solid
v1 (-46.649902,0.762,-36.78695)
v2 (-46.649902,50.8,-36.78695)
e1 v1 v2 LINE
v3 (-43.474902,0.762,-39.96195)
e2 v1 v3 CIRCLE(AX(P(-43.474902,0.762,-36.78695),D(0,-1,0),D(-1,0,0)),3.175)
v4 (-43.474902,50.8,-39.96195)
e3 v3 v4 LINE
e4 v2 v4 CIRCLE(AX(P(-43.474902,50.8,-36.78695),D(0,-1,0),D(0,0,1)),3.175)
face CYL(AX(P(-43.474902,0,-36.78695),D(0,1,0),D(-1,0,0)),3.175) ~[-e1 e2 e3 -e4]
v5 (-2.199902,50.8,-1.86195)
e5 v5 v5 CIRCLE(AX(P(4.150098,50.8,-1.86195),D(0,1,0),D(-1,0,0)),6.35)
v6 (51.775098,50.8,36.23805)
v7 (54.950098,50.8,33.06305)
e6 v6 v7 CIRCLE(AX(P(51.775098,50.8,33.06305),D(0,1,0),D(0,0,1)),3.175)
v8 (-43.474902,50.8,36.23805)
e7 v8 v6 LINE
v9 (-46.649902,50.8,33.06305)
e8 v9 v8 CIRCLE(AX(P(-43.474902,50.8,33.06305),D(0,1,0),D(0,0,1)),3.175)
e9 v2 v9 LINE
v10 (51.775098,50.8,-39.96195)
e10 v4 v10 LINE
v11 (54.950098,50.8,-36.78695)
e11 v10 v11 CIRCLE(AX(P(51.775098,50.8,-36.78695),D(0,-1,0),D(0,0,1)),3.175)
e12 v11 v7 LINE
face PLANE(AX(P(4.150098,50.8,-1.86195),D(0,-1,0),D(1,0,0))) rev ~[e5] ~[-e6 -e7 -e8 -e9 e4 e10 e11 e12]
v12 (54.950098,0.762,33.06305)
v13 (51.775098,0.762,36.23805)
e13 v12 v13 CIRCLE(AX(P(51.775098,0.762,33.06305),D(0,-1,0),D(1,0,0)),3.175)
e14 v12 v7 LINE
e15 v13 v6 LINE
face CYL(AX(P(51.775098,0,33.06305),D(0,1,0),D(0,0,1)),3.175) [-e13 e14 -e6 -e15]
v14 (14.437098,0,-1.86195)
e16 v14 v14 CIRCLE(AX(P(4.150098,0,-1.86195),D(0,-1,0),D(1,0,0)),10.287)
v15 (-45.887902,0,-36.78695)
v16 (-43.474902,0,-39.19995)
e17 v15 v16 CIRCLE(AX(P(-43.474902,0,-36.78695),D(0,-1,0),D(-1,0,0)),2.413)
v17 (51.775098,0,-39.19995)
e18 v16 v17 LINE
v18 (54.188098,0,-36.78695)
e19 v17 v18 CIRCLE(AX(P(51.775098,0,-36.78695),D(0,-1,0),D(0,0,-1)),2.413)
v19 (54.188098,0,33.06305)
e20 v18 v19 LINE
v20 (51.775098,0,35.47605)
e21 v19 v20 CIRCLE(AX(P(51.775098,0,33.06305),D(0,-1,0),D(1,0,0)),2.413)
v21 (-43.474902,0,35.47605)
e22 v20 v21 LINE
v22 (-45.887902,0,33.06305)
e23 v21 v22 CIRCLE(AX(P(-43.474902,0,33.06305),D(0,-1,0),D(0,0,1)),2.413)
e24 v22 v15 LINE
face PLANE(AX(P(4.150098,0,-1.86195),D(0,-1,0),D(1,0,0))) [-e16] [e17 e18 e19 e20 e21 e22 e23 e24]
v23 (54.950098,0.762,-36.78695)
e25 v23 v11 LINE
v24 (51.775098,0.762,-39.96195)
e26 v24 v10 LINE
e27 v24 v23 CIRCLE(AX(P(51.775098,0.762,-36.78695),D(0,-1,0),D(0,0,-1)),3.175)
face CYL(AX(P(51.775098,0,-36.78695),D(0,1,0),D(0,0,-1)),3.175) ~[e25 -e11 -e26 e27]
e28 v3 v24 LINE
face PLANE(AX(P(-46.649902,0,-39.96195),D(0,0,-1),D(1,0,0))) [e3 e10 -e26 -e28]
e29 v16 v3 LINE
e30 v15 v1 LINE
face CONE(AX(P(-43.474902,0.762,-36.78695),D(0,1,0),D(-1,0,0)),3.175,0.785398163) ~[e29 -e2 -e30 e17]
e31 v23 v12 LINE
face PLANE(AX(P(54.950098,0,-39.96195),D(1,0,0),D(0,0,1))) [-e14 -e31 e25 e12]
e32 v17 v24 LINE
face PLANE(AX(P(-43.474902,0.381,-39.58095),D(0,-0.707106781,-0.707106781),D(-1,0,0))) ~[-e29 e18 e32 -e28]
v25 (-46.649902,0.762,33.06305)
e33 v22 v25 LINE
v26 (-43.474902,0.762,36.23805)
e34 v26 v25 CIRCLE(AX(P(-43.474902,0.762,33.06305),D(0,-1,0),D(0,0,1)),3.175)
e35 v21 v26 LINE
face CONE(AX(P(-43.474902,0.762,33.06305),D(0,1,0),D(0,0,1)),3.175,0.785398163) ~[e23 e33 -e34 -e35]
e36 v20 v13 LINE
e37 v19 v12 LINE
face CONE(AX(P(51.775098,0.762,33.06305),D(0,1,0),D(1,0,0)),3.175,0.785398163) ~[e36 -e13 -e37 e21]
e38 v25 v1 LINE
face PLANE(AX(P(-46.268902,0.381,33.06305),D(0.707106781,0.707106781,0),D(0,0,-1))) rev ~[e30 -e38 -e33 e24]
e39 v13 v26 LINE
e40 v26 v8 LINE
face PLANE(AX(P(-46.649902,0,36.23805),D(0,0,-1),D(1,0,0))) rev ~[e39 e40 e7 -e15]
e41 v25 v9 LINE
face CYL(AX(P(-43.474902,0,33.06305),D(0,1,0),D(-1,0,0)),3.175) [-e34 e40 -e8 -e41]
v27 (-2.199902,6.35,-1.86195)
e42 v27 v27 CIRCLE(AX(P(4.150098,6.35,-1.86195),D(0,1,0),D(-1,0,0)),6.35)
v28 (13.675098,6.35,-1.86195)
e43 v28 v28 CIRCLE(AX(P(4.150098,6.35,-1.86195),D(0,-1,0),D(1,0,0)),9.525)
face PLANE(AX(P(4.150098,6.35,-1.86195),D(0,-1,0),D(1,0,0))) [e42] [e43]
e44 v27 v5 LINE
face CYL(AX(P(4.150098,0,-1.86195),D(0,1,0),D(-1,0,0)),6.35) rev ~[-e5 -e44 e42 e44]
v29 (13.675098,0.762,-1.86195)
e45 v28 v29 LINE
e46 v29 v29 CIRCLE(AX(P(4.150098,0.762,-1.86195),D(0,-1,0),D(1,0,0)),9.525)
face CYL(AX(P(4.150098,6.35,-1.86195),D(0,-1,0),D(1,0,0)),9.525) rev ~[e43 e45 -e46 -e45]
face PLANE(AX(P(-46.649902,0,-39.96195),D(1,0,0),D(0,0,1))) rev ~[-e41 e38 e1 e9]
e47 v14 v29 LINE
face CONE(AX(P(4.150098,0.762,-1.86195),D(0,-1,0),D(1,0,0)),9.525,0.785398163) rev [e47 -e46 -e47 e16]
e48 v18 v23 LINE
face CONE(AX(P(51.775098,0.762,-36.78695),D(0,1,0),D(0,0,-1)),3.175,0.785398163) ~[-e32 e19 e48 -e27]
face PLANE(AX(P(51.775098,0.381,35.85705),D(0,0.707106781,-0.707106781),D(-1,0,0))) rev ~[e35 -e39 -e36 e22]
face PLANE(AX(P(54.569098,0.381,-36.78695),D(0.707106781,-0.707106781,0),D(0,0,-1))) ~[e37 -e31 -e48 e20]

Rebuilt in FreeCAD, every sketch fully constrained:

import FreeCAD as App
import Part
import Sketcher
from FreeCAD import Vector
Q = App.Units.Quantity


def edges_at(feature, points):
    """Names of the edges that pass closest to the given points."""
    edges = feature.Shape.Edges
    near = lambda p: min(range(len(edges)), key=lambda i: edges[i].distToShape(Part.Vertex(*p))[0])
    return sorted({f"Edge{near(p) + 1}" for p in points})


def add_polygon(sketch, points):
    """Adds a closed chain of lines whose ends are joined by coincident constraints."""
    first, n = sketch.GeometryCount, len(points)
    for a, b in zip(points, points[1:] + points[:1]):
        sketch.addGeometry(Part.LineSegment(App.Vector(*a, 0), App.Vector(*b, 0)), False)
    for i in range(n):
        sketch.addConstraint(Sketcher.Constraint("Coincident", first + i, 2, first + (i + 1) % n, 1))

doc = App.newDocument("Part")
body = doc.addObject("PartDesign::Body", "Body")

sketch1 = doc.addObject("Sketcher::SketchObject", "Sketch")
body.addObject(sketch1)
sketch1.AttachmentSupport = (doc.XZ_Plane, [""])
sketch1.MapMode = "FlatFace"
add_polygon(sketch1, [(-47, 36), (-47, -40), (55, -40), (55, 36)])
sketch1.addConstraint([
    Sketcher.Constraint("Vertical", 0),
    Sketcher.Constraint("Horizontal", 1),
    Sketcher.Constraint("Vertical", 2),
    Sketcher.Constraint("Horizontal", 3),
    Sketcher.Constraint("DistanceX", 1, 1, 1, 2, Q("4 in")),
    Sketcher.Constraint("DistanceY", 0, 2, 0, 1, Q("3 in")),
    Sketcher.Constraint("DistanceX", 0, 2, -1, 1, 46.649902),
    Sketcher.Constraint("DistanceY", 0, 2, -1, 1, 39.96195),
])
pad1 = doc.addObject("PartDesign::Pad", "Pad")
body.addObject(pad1)
pad1.Profile = sketch1
pad1.Length = Q("2 in")
pad1.Reversed = True

sketch2 = doc.addObject("Sketcher::SketchObject", "Sketch001")
body.addObject(sketch2)
sketch2.AttachmentSupport = (doc.XZ_Plane, [""])
sketch2.MapMode = "FlatFace"
sketch2.addGeometry(Part.Circle(Vector(4, -2, 0), Vector(0, 0, 1), 6), False)
sketch2.addConstraint([
    Sketcher.Constraint("Diameter", 0, Q("0.5 in")),
    Sketcher.Constraint("DistanceX", -1, 1, 0, 3, 4.150098),
    Sketcher.Constraint("DistanceY", 0, 3, -1, 1, 1.86195),
])
doc.recompute()
hole = doc.addObject("PartDesign::Hole", "Hole")
body.addObject(hole)
hole.Profile = sketch2
hole.ThreadType = "None"
hole.Diameter = Q("0.5 in")
hole.DepthType = "ThroughAll"
hole.HoleCutType = "Counterbore"
hole.HoleCutDiameter = Q("0.75 in")
hole.HoleCutDepth = Q("0.25 in")
doc.recompute()

fillet = doc.addObject("PartDesign::Fillet", "Fillet")
body.addObject(fillet)
fillet.Base = (hole, edges_at(hole, [
    (54.95, 25.4, 36.238),
    (-46.65, 25.4, 36.238),
    (54.95, 25.4, -39.962),
    (-46.65, 25.4, -39.962),
]))
fillet.Radius = Q("0.125 in")
doc.recompute()

chamfer = doc.addObject("PartDesign::Chamfer", "Chamfer")
body.addObject(chamfer)
chamfer.Base = (fillet, edges_at(fillet, [
    (4.15, 0, -39.962),
    (-45.72, 0, -39.032),
    (54.02, 0, -39.032),
    (-46.65, 0, -1.862),
    (54.95, 0, -1.862),
    (-45.72, 0, 35.308),
    (54.02, 0, 35.308),
    (4.15, 0, 36.238),
    (-5.375, 0, -1.862),
]))
chamfer.Size = Q("0.03 in")

doc.recompute()
